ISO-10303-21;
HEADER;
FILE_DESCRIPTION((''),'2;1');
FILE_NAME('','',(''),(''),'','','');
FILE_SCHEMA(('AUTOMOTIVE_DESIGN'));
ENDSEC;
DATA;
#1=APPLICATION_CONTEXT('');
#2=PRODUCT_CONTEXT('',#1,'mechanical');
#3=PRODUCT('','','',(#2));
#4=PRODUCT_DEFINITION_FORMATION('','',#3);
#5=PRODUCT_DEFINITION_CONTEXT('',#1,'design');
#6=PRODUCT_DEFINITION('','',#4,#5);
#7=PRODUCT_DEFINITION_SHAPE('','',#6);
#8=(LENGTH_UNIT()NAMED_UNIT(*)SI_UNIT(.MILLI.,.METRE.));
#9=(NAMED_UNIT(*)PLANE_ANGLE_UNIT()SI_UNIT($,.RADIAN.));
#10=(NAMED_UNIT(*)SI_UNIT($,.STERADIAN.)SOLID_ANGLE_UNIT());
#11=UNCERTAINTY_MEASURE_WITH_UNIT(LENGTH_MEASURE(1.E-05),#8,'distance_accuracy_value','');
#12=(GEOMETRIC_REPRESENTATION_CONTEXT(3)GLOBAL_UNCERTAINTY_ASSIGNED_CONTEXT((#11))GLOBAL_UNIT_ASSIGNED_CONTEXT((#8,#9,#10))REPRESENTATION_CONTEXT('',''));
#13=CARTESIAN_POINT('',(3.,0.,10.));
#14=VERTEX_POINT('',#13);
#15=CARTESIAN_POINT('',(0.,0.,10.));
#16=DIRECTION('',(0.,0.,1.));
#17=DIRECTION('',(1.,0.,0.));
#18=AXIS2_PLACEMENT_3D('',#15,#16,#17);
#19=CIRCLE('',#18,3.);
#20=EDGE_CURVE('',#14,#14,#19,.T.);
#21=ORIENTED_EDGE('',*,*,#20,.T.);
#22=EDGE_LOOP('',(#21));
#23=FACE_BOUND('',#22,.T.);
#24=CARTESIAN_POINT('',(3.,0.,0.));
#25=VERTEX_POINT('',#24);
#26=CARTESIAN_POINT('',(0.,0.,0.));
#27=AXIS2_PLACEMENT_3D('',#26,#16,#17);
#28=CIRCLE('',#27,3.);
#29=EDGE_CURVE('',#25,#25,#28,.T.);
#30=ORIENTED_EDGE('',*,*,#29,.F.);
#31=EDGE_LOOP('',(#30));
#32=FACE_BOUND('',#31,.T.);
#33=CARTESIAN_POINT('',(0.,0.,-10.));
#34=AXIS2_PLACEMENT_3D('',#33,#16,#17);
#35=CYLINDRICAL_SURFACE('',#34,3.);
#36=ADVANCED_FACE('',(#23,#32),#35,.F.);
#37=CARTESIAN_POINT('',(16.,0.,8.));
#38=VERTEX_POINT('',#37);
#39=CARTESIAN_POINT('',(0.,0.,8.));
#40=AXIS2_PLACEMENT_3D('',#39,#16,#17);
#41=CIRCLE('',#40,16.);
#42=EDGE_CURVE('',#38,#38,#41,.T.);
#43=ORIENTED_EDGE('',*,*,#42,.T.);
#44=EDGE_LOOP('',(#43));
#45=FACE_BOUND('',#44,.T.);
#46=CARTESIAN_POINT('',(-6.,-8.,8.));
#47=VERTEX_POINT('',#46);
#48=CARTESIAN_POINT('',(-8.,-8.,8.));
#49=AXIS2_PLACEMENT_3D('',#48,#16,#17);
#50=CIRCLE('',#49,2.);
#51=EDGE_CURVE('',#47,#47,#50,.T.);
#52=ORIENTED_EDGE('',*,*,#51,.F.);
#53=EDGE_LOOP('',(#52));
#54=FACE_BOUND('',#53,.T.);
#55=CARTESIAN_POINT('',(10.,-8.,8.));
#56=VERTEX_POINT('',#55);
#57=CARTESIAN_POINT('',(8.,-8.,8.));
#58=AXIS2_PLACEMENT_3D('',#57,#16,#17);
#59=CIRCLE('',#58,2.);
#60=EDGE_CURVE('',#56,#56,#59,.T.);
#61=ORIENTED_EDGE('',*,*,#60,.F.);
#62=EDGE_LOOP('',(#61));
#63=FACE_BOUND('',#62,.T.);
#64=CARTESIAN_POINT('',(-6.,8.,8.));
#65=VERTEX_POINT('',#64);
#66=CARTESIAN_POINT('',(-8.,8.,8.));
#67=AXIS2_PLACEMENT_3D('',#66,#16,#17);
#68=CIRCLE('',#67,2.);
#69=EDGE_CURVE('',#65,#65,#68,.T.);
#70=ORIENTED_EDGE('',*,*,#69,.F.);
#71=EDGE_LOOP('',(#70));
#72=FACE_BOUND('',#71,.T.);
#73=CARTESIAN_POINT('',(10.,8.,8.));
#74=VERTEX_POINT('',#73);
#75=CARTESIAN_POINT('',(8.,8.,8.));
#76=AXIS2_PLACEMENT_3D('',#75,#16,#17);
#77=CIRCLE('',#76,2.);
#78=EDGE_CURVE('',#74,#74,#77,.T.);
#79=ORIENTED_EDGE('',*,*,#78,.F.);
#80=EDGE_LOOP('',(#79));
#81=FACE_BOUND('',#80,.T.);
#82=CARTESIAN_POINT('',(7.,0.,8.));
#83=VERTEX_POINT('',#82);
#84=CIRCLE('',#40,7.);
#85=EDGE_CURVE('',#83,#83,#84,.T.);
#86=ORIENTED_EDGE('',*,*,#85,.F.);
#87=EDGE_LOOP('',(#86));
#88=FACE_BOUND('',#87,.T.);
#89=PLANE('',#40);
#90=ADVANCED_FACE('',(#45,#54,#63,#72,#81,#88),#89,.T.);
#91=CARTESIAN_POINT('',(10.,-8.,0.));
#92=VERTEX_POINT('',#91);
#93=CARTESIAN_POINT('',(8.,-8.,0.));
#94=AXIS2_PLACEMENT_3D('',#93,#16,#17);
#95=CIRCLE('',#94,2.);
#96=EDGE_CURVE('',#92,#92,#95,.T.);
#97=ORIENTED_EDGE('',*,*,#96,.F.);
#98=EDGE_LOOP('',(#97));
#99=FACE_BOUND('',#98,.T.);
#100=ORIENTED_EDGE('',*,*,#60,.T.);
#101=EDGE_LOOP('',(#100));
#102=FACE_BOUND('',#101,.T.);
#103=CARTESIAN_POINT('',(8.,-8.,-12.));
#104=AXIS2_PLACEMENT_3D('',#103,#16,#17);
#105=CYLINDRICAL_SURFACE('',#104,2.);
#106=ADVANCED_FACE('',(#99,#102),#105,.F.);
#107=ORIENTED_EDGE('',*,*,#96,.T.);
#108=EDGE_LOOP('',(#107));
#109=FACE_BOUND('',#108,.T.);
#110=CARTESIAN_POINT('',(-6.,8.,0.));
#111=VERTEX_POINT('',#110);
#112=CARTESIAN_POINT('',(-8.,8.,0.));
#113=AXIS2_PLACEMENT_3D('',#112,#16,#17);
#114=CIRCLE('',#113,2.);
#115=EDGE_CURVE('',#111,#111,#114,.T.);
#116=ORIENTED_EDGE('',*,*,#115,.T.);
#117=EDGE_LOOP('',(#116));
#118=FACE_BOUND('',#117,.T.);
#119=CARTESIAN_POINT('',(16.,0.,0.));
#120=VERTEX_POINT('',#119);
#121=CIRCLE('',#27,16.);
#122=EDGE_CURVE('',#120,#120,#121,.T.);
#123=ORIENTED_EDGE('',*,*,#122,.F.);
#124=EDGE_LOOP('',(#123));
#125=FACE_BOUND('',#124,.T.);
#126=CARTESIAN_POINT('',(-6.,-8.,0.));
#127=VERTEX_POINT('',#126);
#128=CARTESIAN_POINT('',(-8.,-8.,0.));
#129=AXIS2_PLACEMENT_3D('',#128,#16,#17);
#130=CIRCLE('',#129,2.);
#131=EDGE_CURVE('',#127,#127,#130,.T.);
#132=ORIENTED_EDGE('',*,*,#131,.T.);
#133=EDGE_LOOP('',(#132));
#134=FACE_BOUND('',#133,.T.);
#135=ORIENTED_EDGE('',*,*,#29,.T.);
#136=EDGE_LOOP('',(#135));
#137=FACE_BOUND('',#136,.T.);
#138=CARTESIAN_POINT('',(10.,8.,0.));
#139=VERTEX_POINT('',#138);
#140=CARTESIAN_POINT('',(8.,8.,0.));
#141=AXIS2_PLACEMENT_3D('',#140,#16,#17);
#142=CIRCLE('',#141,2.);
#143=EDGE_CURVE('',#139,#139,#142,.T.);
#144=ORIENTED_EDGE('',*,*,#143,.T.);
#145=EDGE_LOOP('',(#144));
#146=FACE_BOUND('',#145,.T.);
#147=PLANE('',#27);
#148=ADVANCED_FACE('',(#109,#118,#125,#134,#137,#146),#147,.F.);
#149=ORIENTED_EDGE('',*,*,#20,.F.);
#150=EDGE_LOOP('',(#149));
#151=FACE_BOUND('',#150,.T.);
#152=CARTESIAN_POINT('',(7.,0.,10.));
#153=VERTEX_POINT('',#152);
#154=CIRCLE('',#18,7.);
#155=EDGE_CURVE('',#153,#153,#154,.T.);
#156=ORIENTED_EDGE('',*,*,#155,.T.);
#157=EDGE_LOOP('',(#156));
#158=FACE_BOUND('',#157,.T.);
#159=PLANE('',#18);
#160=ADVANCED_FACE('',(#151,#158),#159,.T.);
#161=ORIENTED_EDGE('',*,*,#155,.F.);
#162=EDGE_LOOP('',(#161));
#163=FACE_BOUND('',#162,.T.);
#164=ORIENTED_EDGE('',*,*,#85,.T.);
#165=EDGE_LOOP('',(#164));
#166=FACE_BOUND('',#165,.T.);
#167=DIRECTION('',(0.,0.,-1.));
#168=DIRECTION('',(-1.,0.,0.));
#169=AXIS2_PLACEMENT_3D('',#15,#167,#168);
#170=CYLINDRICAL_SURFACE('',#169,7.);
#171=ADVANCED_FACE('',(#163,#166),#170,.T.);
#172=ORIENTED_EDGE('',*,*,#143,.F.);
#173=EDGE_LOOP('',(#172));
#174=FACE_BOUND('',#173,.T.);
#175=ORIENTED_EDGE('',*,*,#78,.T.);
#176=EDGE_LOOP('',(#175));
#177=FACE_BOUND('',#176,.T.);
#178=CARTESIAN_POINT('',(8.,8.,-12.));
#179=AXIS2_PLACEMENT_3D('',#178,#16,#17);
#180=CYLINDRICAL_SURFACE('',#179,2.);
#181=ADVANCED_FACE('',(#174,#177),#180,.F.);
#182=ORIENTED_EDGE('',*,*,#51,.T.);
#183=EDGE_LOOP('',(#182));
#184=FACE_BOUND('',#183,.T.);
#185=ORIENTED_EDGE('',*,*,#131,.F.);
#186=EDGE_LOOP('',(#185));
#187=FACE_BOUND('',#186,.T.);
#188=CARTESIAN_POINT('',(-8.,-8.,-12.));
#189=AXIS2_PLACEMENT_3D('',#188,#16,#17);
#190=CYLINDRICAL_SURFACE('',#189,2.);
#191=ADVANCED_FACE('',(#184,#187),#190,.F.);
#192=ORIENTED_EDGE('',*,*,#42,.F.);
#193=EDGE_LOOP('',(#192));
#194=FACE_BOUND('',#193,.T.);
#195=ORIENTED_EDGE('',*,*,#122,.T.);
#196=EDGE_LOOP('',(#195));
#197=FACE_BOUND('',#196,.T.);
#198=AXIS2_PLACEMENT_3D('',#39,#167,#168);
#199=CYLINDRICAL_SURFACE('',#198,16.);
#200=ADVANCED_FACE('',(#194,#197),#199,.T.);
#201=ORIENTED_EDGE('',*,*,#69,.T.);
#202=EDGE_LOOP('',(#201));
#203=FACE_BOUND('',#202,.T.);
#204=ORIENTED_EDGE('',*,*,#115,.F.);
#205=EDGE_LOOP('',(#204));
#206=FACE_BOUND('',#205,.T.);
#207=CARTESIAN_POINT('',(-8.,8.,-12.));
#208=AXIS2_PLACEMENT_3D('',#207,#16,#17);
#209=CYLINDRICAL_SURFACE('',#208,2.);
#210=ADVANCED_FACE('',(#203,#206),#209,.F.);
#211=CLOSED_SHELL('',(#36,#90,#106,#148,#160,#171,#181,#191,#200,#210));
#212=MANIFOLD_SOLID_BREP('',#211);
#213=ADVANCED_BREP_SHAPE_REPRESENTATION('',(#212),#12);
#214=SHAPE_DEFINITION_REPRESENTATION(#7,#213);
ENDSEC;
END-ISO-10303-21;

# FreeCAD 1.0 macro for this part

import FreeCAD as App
import Part
import Sketcher
Q = App.Units.Quantity

doc = App.newDocument("Part")
body = doc.addObject("PartDesign::Body", "Body")

sketch1 = body.newObject("Sketcher::SketchObject", "Sketch")
sketch1.AttachmentSupport = (doc.getObject("XY_Plane"), [""])
sketch1.MapMode = "FlatFace"
sketch1.addGeometry(Part.Circle(App.Vector(0, 0, 0), App.Vector(0, 0, 1), 16), False)
sketch1.addConstraint([
    Sketcher.Constraint("Coincident", 0, 3, -1, 1),
    Sketcher.Constraint("Diameter", 0, Q("32 mm")),
])
pad1 = body.newObject("PartDesign::Pad", "Pad")
pad1.Profile = sketch1
pad1.Length = 8

sketch2 = body.newObject("Sketcher::SketchObject", "Sketch001")
sketch2.AttachmentSupport = (doc.getObject("XY_Plane"), [""])
sketch2.MapMode = "FlatFace"
sketch2.AttachmentOffset = App.Placement(App.Vector(0, 0, 8), App.Rotation())
sketch2.addGeometry(Part.Circle(App.Vector(0, 0, 0), App.Vector(0, 0, 1), 7), False)
sketch2.addConstraint([
    Sketcher.Constraint("Coincident", 0, 3, -1, 1),
    Sketcher.Constraint("Diameter", 0, Q("14 mm")),
])
pad2 = body.newObject("PartDesign::Pad", "Pad001")
pad2.Profile = sketch2
pad2.Length = 2

sketch3 = body.newObject("Sketcher::SketchObject", "Sketch002")
sketch3.AttachmentSupport = (doc.getObject("XY_Plane"), [""])
sketch3.MapMode = "FlatFace"
sketch3.AttachmentOffset = App.Placement(App.Vector(0, 0, 8), App.Rotation())
sketch3.addGeometry([
    Part.Circle(App.Vector(-8, 8, 0), App.Vector(0, 0, 1), 2),
    Part.Circle(App.Vector(8, 8, 0), App.Vector(0, 0, 1), 2),
    Part.Circle(App.Vector(8, -8, 0), App.Vector(0, 0, 1), 2),
    Part.Circle(App.Vector(-8, -8, 0), App.Vector(0, 0, 1), 2),
], False)
sketch3.addConstraint([
    Sketcher.Constraint("Equal", 0, 1),
    Sketcher.Constraint("Equal", 1, 2),
    Sketcher.Constraint("Equal", 2, 3),
    Sketcher.Constraint("Symmetric", 0, 3, 2, 3, -1, 1),
    Sketcher.Constraint("Symmetric", 1, 3, 3, 3, -1, 1),
    Sketcher.Constraint("Symmetric", 0, 3, 1, 3, -2),
    Sketcher.Constraint("Diameter", 0, Q("4 mm")),
    Sketcher.Constraint("DistanceX", 0, 3, -1, 1, Q("8 mm")),
    Sketcher.Constraint("DistanceY", -1, 1, 0, 3, Q("8 mm")),
])
pocket1 = body.newObject("PartDesign::Pocket", "Pocket")
pocket1.Profile = sketch3
pocket1.Length = 20

sketch4 = body.newObject("Sketcher::SketchObject", "Sketch003")
sketch4.AttachmentSupport = (doc.getObject("XY_Plane"), [""])
sketch4.MapMode = "FlatFace"
sketch4.AttachmentOffset = App.Placement(App.Vector(0, 0, 10), App.Rotation())
sketch4.addGeometry(Part.Circle(App.Vector(0, 0, 0), App.Vector(0, 0, 1), 3), False)
sketch4.addConstraint([
    Sketcher.Constraint("Coincident", 0, 3, -1, 1),
    Sketcher.Constraint("Diameter", 0, Q("6 mm")),
])
pocket2 = body.newObject("PartDesign::Pocket", "Pocket001")
pocket2.Profile = sketch4
pocket2.Length = 20

doc.recompute()
